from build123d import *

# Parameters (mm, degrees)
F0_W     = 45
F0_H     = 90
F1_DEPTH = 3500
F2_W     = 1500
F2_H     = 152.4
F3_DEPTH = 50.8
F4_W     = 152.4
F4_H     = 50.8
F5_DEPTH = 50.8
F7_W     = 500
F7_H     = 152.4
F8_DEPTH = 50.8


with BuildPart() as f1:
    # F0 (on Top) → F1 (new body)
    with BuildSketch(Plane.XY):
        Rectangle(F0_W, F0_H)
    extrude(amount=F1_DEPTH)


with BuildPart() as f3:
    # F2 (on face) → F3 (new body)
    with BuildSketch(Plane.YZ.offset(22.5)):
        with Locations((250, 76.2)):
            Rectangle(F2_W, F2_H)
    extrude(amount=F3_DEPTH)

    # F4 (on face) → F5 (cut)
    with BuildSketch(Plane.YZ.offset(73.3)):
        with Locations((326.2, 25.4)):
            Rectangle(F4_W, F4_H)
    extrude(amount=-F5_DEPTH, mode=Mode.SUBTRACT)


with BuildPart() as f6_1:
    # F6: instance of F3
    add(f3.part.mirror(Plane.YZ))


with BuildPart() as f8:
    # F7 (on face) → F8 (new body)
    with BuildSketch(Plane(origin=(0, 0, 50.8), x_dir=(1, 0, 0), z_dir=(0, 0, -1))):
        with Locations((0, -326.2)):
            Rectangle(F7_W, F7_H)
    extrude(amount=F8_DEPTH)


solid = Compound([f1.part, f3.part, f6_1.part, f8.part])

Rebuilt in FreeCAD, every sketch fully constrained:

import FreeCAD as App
import Part
import Sketcher
from FreeCAD import Vector

doc = App.newDocument("Part")
body = doc.addObject("PartDesign::Body", "Body")

# Sketch on XY plane
sketch1 = doc.addObject("Sketcher::SketchObject", "Sketch")
body.addObject(sketch1)
sketch1.AttachmentSupport = (doc.XY_Plane, [""])
sketch1.MapMode = "FlatFace"
sketch1.addGeometry(Part.LineSegment(Vector(-22, 45, 0), Vector(-22, -45, 0)), False)
sketch1.addGeometry(Part.LineSegment(Vector(-22, -45, 0), Vector(22, -45, 0)), False)
sketch1.addGeometry(Part.LineSegment(Vector(22, -45, 0), Vector(22, 45, 0)), False)
sketch1.addGeometry(Part.LineSegment(Vector(22, 45, 0), Vector(-22, 45, 0)), False)
sketch1.addConstraint(Sketcher.Constraint("Coincident", 0, 2, 1, 1))
sketch1.addConstraint(Sketcher.Constraint("Coincident", 1, 2, 2, 1))
sketch1.addConstraint(Sketcher.Constraint("Coincident", 2, 2, 3, 1))
sketch1.addConstraint(Sketcher.Constraint("Coincident", 3, 2, 0, 1))
sketch1.addConstraint(Sketcher.Constraint("Vertical", 0))
sketch1.addConstraint(Sketcher.Constraint("Horizontal", 1))
sketch1.addConstraint(Sketcher.Constraint("Vertical", 2))
sketch1.addConstraint(Sketcher.Constraint("Horizontal", 3))
sketch1.addConstraint(Sketcher.Constraint("Symmetric", 0, 2, 2, 2, -1, 1))
sketch1.addConstraint(Sketcher.Constraint("DistanceX", 1, 1, 1, 2, 45.0))
sketch1.addConstraint(Sketcher.Constraint("DistanceY", 0, 2, 0, 1, 90.0))
pad1 = doc.addObject("PartDesign::Pad", "Pad")
body.addObject(pad1)
pad1.Profile = sketch1
pad1.Length = 3500
body2 = doc.addObject("PartDesign::Body", "Body001")

# Sketch on YZ plane
sketch2 = doc.addObject("Sketcher::SketchObject", "Sketch001")
body2.addObject(sketch2)
sketch2.AttachmentSupport = (doc.getObject("YZ_Plane001"), [""])
sketch2.MapMode = "FlatFace"
sketch2.AttachmentOffset = App.Placement(Vector(0, 0, 22.5), App.Rotation())
sketch2.addGeometry(Part.LineSegment(Vector(-500, 152, 0), Vector(-500, 0, 0)), False)
sketch2.addGeometry(Part.LineSegment(Vector(-500, 0, 0), Vector(1000, 0, 0)), False)
sketch2.addGeometry(Part.LineSegment(Vector(1000, 0, 0), Vector(1000, 152, 0)), False)
sketch2.addGeometry(Part.LineSegment(Vector(1000, 152, 0), Vector(-500, 152, 0)), False)
sketch2.addConstraint(Sketcher.Constraint("Coincident", 0, 2, 1, 1))
sketch2.addConstraint(Sketcher.Constraint("Coincident", 1, 2, 2, 1))
sketch2.addConstraint(Sketcher.Constraint("Coincident", 2, 2, 3, 1))
sketch2.addConstraint(Sketcher.Constraint("Coincident", 3, 2, 0, 1))
sketch2.addConstraint(Sketcher.Constraint("Vertical", 0))
sketch2.addConstraint(Sketcher.Constraint("Horizontal", 1))
sketch2.addConstraint(Sketcher.Constraint("Vertical", 2))
sketch2.addConstraint(Sketcher.Constraint("Horizontal", 3))
sketch2.addConstraint(Sketcher.Constraint("PointOnObject", 0, 2, -1))
sketch2.addConstraint(Sketcher.Constraint("DistanceX", 1, 1, 1, 2, 1500.0))
sketch2.addConstraint(Sketcher.Constraint("DistanceY", 0, 2, 0, 1, 152.4))
sketch2.addConstraint(Sketcher.Constraint("DistanceX", 0, 2, -1, 1, 500.0))
pad2 = doc.addObject("PartDesign::Pad", "Pad001")
body2.addObject(pad2)
pad2.Profile = sketch2
pad2.Length = 50.8

# Sketch on YZ plane
sketch3 = doc.addObject("Sketcher::SketchObject", "Sketch002")
body2.addObject(sketch3)
sketch3.AttachmentSupport = (doc.getObject("YZ_Plane001"), [""])
sketch3.MapMode = "FlatFace"
sketch3.AttachmentOffset = App.Placement(Vector(0, 0, 73.3), App.Rotation())
sketch3.addGeometry(Part.LineSegment(Vector(250, 51, 0), Vector(250, 0, 0)), False)
sketch3.addGeometry(Part.LineSegment(Vector(250, 0, 0), Vector(402, 0, 0)), False)
sketch3.addGeometry(Part.LineSegment(Vector(402, 0, 0), Vector(402, 51, 0)), False)
sketch3.addGeometry(Part.LineSegment(Vector(402, 51, 0), Vector(250, 51, 0)), False)
sketch3.addConstraint(Sketcher.Constraint("Coincident", 0, 2, 1, 1))
sketch3.addConstraint(Sketcher.Constraint("Coincident", 1, 2, 2, 1))
sketch3.addConstraint(Sketcher.Constraint("Coincident", 2, 2, 3, 1))
sketch3.addConstraint(Sketcher.Constraint("Coincident", 3, 2, 0, 1))
sketch3.addConstraint(Sketcher.Constraint("Vertical", 0))
sketch3.addConstraint(Sketcher.Constraint("Horizontal", 1))
sketch3.addConstraint(Sketcher.Constraint("Vertical", 2))
sketch3.addConstraint(Sketcher.Constraint("Horizontal", 3))
sketch3.addConstraint(Sketcher.Constraint("PointOnObject", 0, 2, -1))
sketch3.addConstraint(Sketcher.Constraint("DistanceX", 1, 1, 1, 2, 152.4))
sketch3.addConstraint(Sketcher.Constraint("DistanceY", 0, 2, 0, 1, 50.8))
sketch3.addConstraint(Sketcher.Constraint("DistanceX", -1, 1, 0, 2, 250.0))
pocket1 = doc.addObject("PartDesign::Pocket", "Pocket")
body2.addObject(pocket1)
pocket1.Profile = sketch3
pocket1.Length = 50.8
body3 = doc.addObject("PartDesign::Body", "Body002")
doc.recompute()

mirroring = doc.addObject("Part::Mirroring", "Mirroring")
mirroring.Source = body2
mirroring.Base = Vector(0, 0, 0)
mirroring.Normal = Vector(1, 0, 0)
body3.BaseFeature = mirroring
doc.recompute()
body4 = doc.addObject("PartDesign::Body", "Body003")

# Sketch on XY plane
sketch4 = doc.addObject("Sketcher::SketchObject", "Sketch003")
body4.addObject(sketch4)
sketch4.AttachmentSupport = (doc.getObject("XY_Plane003"), [""])
sketch4.MapMode = "FlatFace"
sketch4.AttachmentOffset = App.Placement(Vector(0, 0, 50.8), App.Rotation())
sketch4.addGeometry(Part.LineSegment(Vector(-250, 250, 0), Vector(-250, 402, 0)), False)
sketch4.addGeometry(Part.LineSegment(Vector(-250, 402, 0), Vector(250, 402, 0)), False)
sketch4.addGeometry(Part.LineSegment(Vector(250, 402, 0), Vector(250, 250, 0)), False)
sketch4.addGeometry(Part.LineSegment(Vector(250, 250, 0), Vector(-250, 250, 0)), False)
sketch4.addConstraint(Sketcher.Constraint("Coincident", 0, 2, 1, 1))
sketch4.addConstraint(Sketcher.Constraint("Coincident", 1, 2, 2, 1))
sketch4.addConstraint(Sketcher.Constraint("Coincident", 2, 2, 3, 1))
sketch4.addConstraint(Sketcher.Constraint("Coincident", 3, 2, 0, 1))
sketch4.addConstraint(Sketcher.Constraint("Vertical", 0))
sketch4.addConstraint(Sketcher.Constraint("Horizontal", 1))
sketch4.addConstraint(Sketcher.Constraint("Vertical", 2))
sketch4.addConstraint(Sketcher.Constraint("Horizontal", 3))
sketch4.addConstraint(Sketcher.Constraint("DistanceX", 1, 1, 1, 2, 500.0))
sketch4.addConstraint(Sketcher.Constraint("DistanceY", 0, 1, 0, 2, 152.4))
sketch4.addConstraint(Sketcher.Constraint("DistanceX", 0, 2, -1, 1, 250.0))
sketch4.addConstraint(Sketcher.Constraint("DistanceY", -1, 1, 2, 2, 250.0))
pad3 = doc.addObject("PartDesign::Pad", "Pad002")
body4.addObject(pad3)
pad3.Profile = sketch4
pad3.Length = 50.8
pad3.Reversed = True
mirroring.Visibility = False

doc.recompute()
